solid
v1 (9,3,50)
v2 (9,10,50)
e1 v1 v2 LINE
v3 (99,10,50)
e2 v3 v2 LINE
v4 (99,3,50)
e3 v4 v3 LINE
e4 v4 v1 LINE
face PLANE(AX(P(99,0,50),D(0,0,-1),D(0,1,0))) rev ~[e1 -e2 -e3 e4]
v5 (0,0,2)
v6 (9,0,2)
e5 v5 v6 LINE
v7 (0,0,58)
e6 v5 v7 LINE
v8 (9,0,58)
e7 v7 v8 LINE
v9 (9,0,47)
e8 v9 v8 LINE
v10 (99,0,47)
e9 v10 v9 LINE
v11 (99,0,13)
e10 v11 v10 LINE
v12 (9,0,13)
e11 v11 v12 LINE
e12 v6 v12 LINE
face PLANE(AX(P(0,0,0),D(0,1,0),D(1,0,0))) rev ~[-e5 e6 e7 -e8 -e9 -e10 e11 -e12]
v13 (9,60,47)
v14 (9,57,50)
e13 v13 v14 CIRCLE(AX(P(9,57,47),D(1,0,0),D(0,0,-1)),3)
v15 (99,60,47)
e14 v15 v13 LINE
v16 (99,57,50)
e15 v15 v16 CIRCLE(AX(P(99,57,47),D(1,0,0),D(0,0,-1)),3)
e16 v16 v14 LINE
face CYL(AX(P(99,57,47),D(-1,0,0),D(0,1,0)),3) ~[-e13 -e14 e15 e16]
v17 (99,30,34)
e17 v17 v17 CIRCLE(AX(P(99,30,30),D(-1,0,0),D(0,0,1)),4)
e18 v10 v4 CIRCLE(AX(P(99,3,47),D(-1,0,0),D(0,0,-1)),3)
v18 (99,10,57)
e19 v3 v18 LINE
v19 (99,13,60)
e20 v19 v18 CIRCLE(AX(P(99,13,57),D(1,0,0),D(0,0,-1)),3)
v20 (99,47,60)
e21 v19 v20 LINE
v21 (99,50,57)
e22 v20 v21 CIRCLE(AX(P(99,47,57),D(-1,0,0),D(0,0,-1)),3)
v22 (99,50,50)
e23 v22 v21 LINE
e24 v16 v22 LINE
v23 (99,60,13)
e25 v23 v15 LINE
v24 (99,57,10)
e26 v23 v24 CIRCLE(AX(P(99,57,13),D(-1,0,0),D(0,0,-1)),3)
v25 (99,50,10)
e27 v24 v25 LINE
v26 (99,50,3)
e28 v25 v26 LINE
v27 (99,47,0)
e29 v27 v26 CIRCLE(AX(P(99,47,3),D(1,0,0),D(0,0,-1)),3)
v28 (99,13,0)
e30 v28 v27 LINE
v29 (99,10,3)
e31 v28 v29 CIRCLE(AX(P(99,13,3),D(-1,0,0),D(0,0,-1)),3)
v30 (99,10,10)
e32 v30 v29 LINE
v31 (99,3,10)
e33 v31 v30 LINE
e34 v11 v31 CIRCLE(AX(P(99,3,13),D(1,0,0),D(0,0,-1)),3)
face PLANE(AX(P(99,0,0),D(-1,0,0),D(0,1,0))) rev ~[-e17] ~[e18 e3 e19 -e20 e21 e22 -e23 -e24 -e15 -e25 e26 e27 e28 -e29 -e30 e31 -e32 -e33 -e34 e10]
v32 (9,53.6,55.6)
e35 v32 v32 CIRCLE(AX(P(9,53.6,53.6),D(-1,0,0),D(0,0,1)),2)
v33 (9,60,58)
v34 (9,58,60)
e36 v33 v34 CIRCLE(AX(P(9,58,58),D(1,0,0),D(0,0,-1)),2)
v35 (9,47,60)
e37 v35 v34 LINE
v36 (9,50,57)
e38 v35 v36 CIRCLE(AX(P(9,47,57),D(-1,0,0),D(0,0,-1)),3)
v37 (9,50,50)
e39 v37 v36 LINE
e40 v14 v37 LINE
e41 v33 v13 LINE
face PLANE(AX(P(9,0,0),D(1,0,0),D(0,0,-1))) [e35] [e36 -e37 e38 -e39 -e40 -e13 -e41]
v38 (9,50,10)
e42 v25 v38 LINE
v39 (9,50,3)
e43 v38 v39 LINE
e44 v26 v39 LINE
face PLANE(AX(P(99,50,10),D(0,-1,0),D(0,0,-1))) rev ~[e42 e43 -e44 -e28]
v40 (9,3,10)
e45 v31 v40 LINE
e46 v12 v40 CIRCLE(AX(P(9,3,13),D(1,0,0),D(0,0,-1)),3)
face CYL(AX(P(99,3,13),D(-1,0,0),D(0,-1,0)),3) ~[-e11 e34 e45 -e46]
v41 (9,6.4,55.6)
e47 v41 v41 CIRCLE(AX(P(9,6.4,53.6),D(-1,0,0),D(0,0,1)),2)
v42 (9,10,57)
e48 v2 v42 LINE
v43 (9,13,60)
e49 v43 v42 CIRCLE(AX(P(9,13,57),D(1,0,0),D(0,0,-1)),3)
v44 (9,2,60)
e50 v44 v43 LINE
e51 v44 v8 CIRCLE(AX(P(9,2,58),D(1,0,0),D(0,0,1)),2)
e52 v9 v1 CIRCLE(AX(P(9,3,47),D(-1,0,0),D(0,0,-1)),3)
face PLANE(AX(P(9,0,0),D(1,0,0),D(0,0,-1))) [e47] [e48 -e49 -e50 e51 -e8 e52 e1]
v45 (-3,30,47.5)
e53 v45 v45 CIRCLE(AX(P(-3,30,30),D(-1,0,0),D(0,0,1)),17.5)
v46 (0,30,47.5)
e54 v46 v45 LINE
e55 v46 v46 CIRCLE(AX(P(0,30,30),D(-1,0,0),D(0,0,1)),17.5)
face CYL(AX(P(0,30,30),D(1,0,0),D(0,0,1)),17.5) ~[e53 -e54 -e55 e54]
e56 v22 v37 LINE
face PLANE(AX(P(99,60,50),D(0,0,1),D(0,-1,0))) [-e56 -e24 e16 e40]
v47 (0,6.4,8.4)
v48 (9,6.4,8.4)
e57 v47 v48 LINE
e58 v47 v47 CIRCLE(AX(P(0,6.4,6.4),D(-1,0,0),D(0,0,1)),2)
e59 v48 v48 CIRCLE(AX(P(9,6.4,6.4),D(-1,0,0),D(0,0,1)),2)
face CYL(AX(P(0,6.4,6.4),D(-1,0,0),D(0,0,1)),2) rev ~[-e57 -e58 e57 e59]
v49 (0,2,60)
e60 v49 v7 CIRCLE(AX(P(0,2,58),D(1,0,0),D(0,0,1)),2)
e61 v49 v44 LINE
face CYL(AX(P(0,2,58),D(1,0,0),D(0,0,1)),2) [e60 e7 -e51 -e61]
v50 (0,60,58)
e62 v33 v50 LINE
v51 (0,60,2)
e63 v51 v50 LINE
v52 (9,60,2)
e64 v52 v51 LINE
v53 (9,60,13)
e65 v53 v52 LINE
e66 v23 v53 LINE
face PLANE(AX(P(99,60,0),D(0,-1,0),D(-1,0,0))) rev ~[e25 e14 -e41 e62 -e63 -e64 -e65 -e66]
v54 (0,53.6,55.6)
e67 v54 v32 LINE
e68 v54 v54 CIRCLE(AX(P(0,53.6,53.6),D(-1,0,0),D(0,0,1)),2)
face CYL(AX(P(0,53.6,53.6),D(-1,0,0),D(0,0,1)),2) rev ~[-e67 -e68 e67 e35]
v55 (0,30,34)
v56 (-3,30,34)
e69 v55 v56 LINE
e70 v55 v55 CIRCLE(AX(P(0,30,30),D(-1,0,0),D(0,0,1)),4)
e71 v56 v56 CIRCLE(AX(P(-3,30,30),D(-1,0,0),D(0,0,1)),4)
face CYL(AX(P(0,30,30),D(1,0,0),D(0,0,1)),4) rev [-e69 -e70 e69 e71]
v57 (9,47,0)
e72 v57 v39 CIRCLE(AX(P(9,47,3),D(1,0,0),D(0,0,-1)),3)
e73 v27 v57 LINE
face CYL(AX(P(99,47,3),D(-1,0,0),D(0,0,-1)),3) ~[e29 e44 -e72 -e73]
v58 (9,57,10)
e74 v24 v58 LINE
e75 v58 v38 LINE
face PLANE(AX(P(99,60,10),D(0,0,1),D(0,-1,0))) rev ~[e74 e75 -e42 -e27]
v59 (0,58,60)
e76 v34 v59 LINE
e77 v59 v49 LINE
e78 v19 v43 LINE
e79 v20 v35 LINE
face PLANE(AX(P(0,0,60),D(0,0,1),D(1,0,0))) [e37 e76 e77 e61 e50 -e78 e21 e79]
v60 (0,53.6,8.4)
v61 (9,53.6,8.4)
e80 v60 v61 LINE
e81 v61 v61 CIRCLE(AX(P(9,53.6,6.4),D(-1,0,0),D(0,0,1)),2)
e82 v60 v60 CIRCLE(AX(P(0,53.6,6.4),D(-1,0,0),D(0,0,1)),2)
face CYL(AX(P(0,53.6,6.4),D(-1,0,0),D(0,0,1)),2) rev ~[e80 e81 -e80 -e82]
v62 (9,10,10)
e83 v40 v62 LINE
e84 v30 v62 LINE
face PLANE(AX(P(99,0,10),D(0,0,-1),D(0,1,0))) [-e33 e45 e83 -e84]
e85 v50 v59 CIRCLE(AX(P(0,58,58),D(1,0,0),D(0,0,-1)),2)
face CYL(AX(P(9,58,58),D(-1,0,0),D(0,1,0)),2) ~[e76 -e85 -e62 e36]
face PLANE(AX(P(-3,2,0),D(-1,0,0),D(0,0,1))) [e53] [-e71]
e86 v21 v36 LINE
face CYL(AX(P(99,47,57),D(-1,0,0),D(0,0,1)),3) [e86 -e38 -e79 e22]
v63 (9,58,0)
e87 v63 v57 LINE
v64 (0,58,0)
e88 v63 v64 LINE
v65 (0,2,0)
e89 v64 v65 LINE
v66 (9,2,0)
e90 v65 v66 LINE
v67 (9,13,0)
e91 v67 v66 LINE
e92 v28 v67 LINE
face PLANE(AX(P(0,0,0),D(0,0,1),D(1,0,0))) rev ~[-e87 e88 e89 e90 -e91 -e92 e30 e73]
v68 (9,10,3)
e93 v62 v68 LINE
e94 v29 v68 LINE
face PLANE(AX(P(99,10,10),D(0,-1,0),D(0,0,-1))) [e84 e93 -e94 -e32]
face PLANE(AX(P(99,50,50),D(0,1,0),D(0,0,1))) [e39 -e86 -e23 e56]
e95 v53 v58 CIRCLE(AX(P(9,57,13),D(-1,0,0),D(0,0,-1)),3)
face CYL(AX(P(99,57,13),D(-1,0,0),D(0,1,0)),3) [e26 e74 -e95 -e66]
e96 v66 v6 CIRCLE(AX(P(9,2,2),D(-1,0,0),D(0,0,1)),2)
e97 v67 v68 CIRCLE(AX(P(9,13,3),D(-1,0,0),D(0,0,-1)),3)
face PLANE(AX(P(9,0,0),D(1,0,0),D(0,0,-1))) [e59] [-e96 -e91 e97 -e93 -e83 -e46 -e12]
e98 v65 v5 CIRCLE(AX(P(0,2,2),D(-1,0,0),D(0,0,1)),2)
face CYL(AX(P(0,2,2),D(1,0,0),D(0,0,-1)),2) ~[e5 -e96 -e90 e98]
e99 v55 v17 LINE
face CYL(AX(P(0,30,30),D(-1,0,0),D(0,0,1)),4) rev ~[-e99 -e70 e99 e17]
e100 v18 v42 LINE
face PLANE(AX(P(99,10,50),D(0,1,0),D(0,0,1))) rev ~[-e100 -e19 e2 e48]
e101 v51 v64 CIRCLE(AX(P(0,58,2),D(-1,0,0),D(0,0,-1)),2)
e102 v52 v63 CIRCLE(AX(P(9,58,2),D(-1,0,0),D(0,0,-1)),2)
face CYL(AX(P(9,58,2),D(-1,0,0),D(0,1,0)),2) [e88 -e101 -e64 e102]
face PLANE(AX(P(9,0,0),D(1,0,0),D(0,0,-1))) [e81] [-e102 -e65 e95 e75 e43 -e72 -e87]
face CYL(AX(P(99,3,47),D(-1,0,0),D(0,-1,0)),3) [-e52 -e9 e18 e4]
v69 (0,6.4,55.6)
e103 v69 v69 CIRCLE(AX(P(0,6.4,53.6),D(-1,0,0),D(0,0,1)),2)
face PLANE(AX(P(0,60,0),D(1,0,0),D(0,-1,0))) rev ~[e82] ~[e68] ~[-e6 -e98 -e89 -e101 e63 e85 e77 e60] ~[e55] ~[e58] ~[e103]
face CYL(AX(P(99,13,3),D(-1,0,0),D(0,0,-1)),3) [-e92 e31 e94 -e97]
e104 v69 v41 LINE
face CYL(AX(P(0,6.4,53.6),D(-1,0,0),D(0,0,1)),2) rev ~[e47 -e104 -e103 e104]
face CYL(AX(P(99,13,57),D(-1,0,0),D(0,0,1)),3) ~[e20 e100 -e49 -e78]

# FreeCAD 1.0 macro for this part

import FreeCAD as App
import Part
import Sketcher
from FreeCAD import Vector
Q = App.Units.Quantity


def edges_at(feature, points):
    """Names of the edges that pass closest to the given points."""
    edges = feature.Shape.Edges
    near = lambda p: min(range(len(edges)), key=lambda i: edges[i].distToShape(Part.Vertex(*p))[0])
    return sorted({f"Edge{near(p) + 1}" for p in points})

doc = App.newDocument("Part")
params = doc.addObject("Spreadsheet::Sheet", "Params")
for row, (alias, value) in enumerate([
    ("sketch1_width", "99 mm"),
    ("sketch1_height", "60 mm"),
    ("pad1_length", "60 mm"),
    ("sketch2_diameter", "8 mm"),
    ("sketch3_width", "10 mm"),
    ("pocket2_length", "90 mm"),
    ("fillet_radius", "3 mm"),
    ("fillet2_radius", "2 mm"),
    ("sketch4_diameter", "35 mm"),
    ("sketch4_diameter2", "8 mm"),
    ("pad2_length", "3 mm"),
    ("sketch5_diameter", "4 mm"),
], start=1):
    params.set(f"A{row}", alias)
    params.set(f"B{row}", "=" + value)
    params.setAlias(f"B{row}", alias)

body = doc.addObject("PartDesign::Body", "Body")

# Sketch on XY plane
sketch1 = body.newObject("Sketcher::SketchObject", "Sketch")
sketch1.AttachmentSupport = (doc.getObject("XY_Plane"), [""])
sketch1.MapMode = "FlatFace"
sketch1.addGeometry(Part.LineSegment(Vector(0, 60, 0), Vector(0, 0, 0)), False)
sketch1.addGeometry(Part.LineSegment(Vector(0, 0, 0), Vector(99, 0, 0)), False)
sketch1.addGeometry(Part.LineSegment(Vector(99, 0, 0), Vector(99, 60, 0)), False)
sketch1.addGeometry(Part.LineSegment(Vector(99, 60, 0), Vector(0, 60, 0)), False)
sketch1.addConstraint(Sketcher.Constraint("Coincident", 0, 2, 1, 1))
sketch1.addConstraint(Sketcher.Constraint("Coincident", 1, 2, 2, 1))
sketch1.addConstraint(Sketcher.Constraint("Coincident", 2, 2, 3, 1))
sketch1.addConstraint(Sketcher.Constraint("Coincident", 3, 2, 0, 1))
sketch1.addConstraint(Sketcher.Constraint("Vertical", 0))
sketch1.addConstraint(Sketcher.Constraint("Horizontal", 1))
sketch1.addConstraint(Sketcher.Constraint("Vertical", 2))
sketch1.addConstraint(Sketcher.Constraint("Horizontal", 3))
sketch1.addConstraint(Sketcher.Constraint("Coincident", 0, 2, -1, 1))
sketch1.addConstraint(Sketcher.Constraint("DistanceX", 1, 1, 1, 2, Q("99 mm")))
sketch1.addConstraint(Sketcher.Constraint("DistanceY", 0, 2, 0, 1, Q("60 mm")))
sketch1.setExpression("Constraints[9]", "Params.sketch1_width")
sketch1.setExpression("Constraints[10]", "Params.sketch1_height")
pad1 = body.newObject("PartDesign::Pad", "Pad")
pad1.Profile = sketch1
pad1.setExpression("Length", "Params.pad1_length")

# Sketch on YZ plane
sketch2 = body.newObject("Sketcher::SketchObject", "Sketch001")
sketch2.AttachmentSupport = (doc.getObject("YZ_Plane"), [""])
sketch2.MapMode = "FlatFace"
sketch2.addGeometry(Part.Circle(Vector(30, 30, 0), Vector(0, 0, 1), 4), False)
sketch2.addConstraint(Sketcher.Constraint("Diameter", 0, Q("8 mm")))
sketch2.addConstraint(Sketcher.Constraint("DistanceX", -1, 1, 0, 3, Q("30 mm")))
sketch2.addConstraint(Sketcher.Constraint("DistanceY", -1, 1, 0, 3, Q("30 mm")))
sketch2.setExpression("Constraints[0]", "Params.sketch2_diameter")
pocket1 = body.newObject("PartDesign::Pocket", "Pocket")
pocket1.Profile = sketch2
pocket1.Type = "ThroughAll"
pocket1.Reversed = True

# Sketch on YZ plane
sketch3 = body.newObject("Sketcher::SketchObject", "Sketch002")
sketch3.AttachmentSupport = (doc.getObject("YZ_Plane"), [""])
sketch3.MapMode = "FlatFace"
sketch3.AttachmentOffset = App.Placement(Vector(0, 0, 99), App.Rotation())
sketch3.addGeometry(Part.LineSegment(Vector(50, 0, 0), Vector(60, 0, 0)), False)
sketch3.addGeometry(Part.LineSegment(Vector(60, 0, 0), Vector(60, 10, 0)), False)
sketch3.addGeometry(Part.LineSegment(Vector(60, 10, 0), Vector(50, 10, 0)), False)
sketch3.addGeometry(Part.LineSegment(Vector(50, 10, 0), Vector(50, 0, 0)), False)
sketch3.addGeometry(Part.LineSegment(Vector(50, 50, 0), Vector(60, 50, 0)), False)
sketch3.addGeometry(Part.LineSegment(Vector(60, 50, 0), Vector(60, 60, 0)), False)
sketch3.addGeometry(Part.LineSegment(Vector(60, 60, 0), Vector(50, 60, 0)), False)
sketch3.addGeometry(Part.LineSegment(Vector(50, 60, 0), Vector(50, 50, 0)), False)
sketch3.addGeometry(Part.LineSegment(Vector(0, 10, 0), Vector(0, 0, 0)), False)
sketch3.addGeometry(Part.LineSegment(Vector(0, 0, 0), Vector(10, 0, 0)), False)
sketch3.addGeometry(Part.LineSegment(Vector(10, 0, 0), Vector(10, 10, 0)), False)
sketch3.addGeometry(Part.LineSegment(Vector(10, 10, 0), Vector(0, 10, 0)), False)
sketch3.addGeometry(Part.LineSegment(Vector(10, 60, 0), Vector(0, 60, 0)), False)
sketch3.addGeometry(Part.LineSegment(Vector(0, 60, 0), Vector(0, 50, 0)), False)
sketch3.addGeometry(Part.LineSegment(Vector(0, 50, 0), Vector(10, 50, 0)), False)
sketch3.addGeometry(Part.LineSegment(Vector(10, 50, 0), Vector(10, 60, 0)), False)
sketch3.addConstraint(Sketcher.Constraint("Coincident", 0, 2, 1, 1))
sketch3.addConstraint(Sketcher.Constraint("Coincident", 1, 2, 2, 1))
sketch3.addConstraint(Sketcher.Constraint("Coincident", 2, 2, 3, 1))
sketch3.addConstraint(Sketcher.Constraint("Coincident", 3, 2, 0, 1))
sketch3.addConstraint(Sketcher.Constraint("Coincident", 4, 2, 5, 1))
sketch3.addConstraint(Sketcher.Constraint("Coincident", 5, 2, 6, 1))
sketch3.addConstraint(Sketcher.Constraint("Coincident", 6, 2, 7, 1))
sketch3.addConstraint(Sketcher.Constraint("Coincident", 7, 2, 4, 1))
sketch3.addConstraint(Sketcher.Constraint("Coincident", 8, 2, 9, 1))
sketch3.addConstraint(Sketcher.Constraint("Coincident", 9, 2, 10, 1))
sketch3.addConstraint(Sketcher.Constraint("Coincident", 10, 2, 11, 1))
sketch3.addConstraint(Sketcher.Constraint("Coincident", 11, 2, 8, 1))
sketch3.addConstraint(Sketcher.Constraint("Coincident", 12, 2, 13, 1))
sketch3.addConstraint(Sketcher.Constraint("Coincident", 13, 2, 14, 1))
sketch3.addConstraint(Sketcher.Constraint("Coincident", 14, 2, 15, 1))
sketch3.addConstraint(Sketcher.Constraint("Coincident", 15, 2, 12, 1))
sketch3.addConstraint(Sketcher.Constraint("Horizontal", 0))
sketch3.addConstraint(Sketcher.Constraint("Vertical", 1))
sketch3.addConstraint(Sketcher.Constraint("Horizontal", 2))
sketch3.addConstraint(Sketcher.Constraint("Vertical", 3))
sketch3.addConstraint(Sketcher.Constraint("Horizontal", 4))
sketch3.addConstraint(Sketcher.Constraint("Vertical", 5))
sketch3.addConstraint(Sketcher.Constraint("Horizontal", 6))
sketch3.addConstraint(Sketcher.Constraint("Vertical", 7))
sketch3.addConstraint(Sketcher.Constraint("Vertical", 8))
sketch3.addConstraint(Sketcher.Constraint("Horizontal", 9))
sketch3.addConstraint(Sketcher.Constraint("Vertical", 10))
sketch3.addConstraint(Sketcher.Constraint("Horizontal", 11))
sketch3.addConstraint(Sketcher.Constraint("Horizontal", 12))
sketch3.addConstraint(Sketcher.Constraint("Vertical", 13))
sketch3.addConstraint(Sketcher.Constraint("Horizontal", 14))
sketch3.addConstraint(Sketcher.Constraint("Vertical", 15))
sketch3.addConstraint(Sketcher.Constraint("Coincident", 8, 2, -1, 1))
sketch3.addConstraint(Sketcher.Constraint("PointOnObject", 0, 2, -1))
sketch3.addConstraint(Sketcher.Constraint("PointOnObject", 12, 2, -2))
sketch3.addConstraint(Sketcher.Constraint("Horizontal", 2, 2, 10, 2))
sketch3.addConstraint(Sketcher.Constraint("Horizontal", 6, 2, 12, 2))
sketch3.addConstraint(Sketcher.Constraint("Horizontal", 7, 2, 13, 2))
sketch3.addConstraint(Sketcher.Constraint("Vertical", 1, 2, 4, 2))
sketch3.addConstraint(Sketcher.Constraint("Vertical", 3, 2, 6, 2))
sketch3.addConstraint(Sketcher.Constraint("Vertical", 10, 2, 14, 2))
sketch3.addConstraint(Sketcher.Constraint("Equal", 6, 9))
sketch3.addConstraint(Sketcher.Constraint("Equal", 14, 1))
sketch3.addConstraint(Sketcher.Constraint("Equal", 3, 5))
sketch3.addConstraint(Sketcher.Constraint("DistanceX", 0, 1, 0, 2, Q("10 mm")))
sketch3.addConstraint(Sketcher.Constraint("DistanceX", -1, 1, 0, 2, Q("60 mm")))
sketch3.addConstraint(Sketcher.Constraint("DistanceY", -1, 1, 4, 2, Q("50 mm")))
sketch3.setExpression("Constraints[44]", "Params.sketch3_width")
pocket2 = body.newObject("PartDesign::Pocket", "Pocket001")
pocket2.Profile = sketch3
pocket2.setExpression("Length", "Params.pocket2_length")
doc.recompute()

fillet = body.newObject("PartDesign::Fillet", "Fillet")
fillet.Base = (pocket2, edges_at(pocket2, [
    (54, 50, 60),
    (54, 60, 50),
    (54, 60, 10),
    (54, 50, 0),
    (54, 10, 60),
    (54, 0, 50),
    (54, 0, 10),
    (54, 10, 0),
]))
fillet.setExpression("Radius", "Params.fillet_radius")
doc.recompute()

fillet2 = body.newObject("PartDesign::Fillet", "Fillet001")
fillet2.Base = (fillet, edges_at(fillet, [
    (4.5, 60, 60),
    (4.5, 0, 60),
    (4.5, 60, 0),
    (4.5, 0, 0),
]))
fillet2.setExpression("Radius", "Params.fillet2_radius")

# Sketch on YZ plane
sketch4 = body.newObject("Sketcher::SketchObject", "Sketch003")
sketch4.AttachmentSupport = (doc.getObject("YZ_Plane"), [""])
sketch4.MapMode = "FlatFace"
sketch4.addGeometry(Part.Circle(Vector(30, 30, 0), Vector(0, 0, 1), 17.5), False)
sketch4.addGeometry(Part.Circle(Vector(30, 30, 0), Vector(0, 0, 1), 4), False)
sketch4.addConstraint(Sketcher.Constraint("Coincident", 1, 3, 0, 3))
sketch4.addConstraint(Sketcher.Constraint("Diameter", 0, Q("35 mm")))
sketch4.addConstraint(Sketcher.Constraint("Diameter", 1, Q("8 mm")))
sketch4.addConstraint(Sketcher.Constraint("DistanceX", -1, 1, 0, 3, Q("30 mm")))
sketch4.addConstraint(Sketcher.Constraint("DistanceY", -1, 1, 0, 3, Q("30 mm")))
sketch4.setExpression("Constraints[1]", "Params.sketch4_diameter")
sketch4.setExpression("Constraints[2]", "Params.sketch4_diameter2")
pad2 = body.newObject("PartDesign::Pad", "Pad001")
pad2.Profile = sketch4
pad2.setExpression("Length", "Params.pad2_length")
pad2.Reversed = True

# Sketch on YZ plane
sketch5 = body.newObject("Sketcher::SketchObject", "Sketch004")
sketch5.AttachmentSupport = (doc.getObject("YZ_Plane"), [""])
sketch5.MapMode = "FlatFace"
sketch5.addGeometry(Part.Circle(Vector(53.6, 6.4, 0), Vector(0, 0, 1), 2), False)
sketch5.addGeometry(Part.Circle(Vector(53.6, 53.6, 0), Vector(0, 0, 1), 2), False)
sketch5.addGeometry(Part.Circle(Vector(6.4, 53.6, 0), Vector(0, 0, 1), 2), False)
sketch5.addGeometry(Part.Circle(Vector(6.4, 6.4, 0), Vector(0, 0, 1), 2), False)
sketch5.addConstraint(Sketcher.Constraint("Equal", 0, 1))
sketch5.addConstraint(Sketcher.Constraint("Equal", 1, 2))
sketch5.addConstraint(Sketcher.Constraint("Equal", 2, 3))
sketch5.addConstraint(Sketcher.Constraint("Horizontal", 1, 3, 2, 3))
sketch5.addConstraint(Sketcher.Constraint("Horizontal", 0, 3, 3, 3))
sketch5.addConstraint(Sketcher.Constraint("Vertical", 0, 3, 1, 3))
sketch5.addConstraint(Sketcher.Constraint("Vertical", 2, 3, 3, 3))
sketch5.addConstraint(Sketcher.Constraint("Diameter", 0, Q("4 mm")))
sketch5.addConstraint(Sketcher.Constraint("DistanceY", 0, 3, 1, 3, Q("47.2 mm")))
sketch5.addConstraint(Sketcher.Constraint("DistanceX", 2, 3, 1, 3, Q("47.2 mm")))
sketch5.addConstraint(Sketcher.Constraint("DistanceX", -1, 1, 0, 3, Q("53.6 mm")))
sketch5.addConstraint(Sketcher.Constraint("DistanceY", -1, 1, 0, 3, Q("6.4 mm")))
sketch5.setExpression("Constraints[7]", "Params.sketch5_diameter")
pocket3 = body.newObject("PartDesign::Pocket", "Pocket002")
pocket3.Profile = sketch5
pocket3.Type = "ThroughAll"
pocket3.Reversed = True

doc.recompute()
